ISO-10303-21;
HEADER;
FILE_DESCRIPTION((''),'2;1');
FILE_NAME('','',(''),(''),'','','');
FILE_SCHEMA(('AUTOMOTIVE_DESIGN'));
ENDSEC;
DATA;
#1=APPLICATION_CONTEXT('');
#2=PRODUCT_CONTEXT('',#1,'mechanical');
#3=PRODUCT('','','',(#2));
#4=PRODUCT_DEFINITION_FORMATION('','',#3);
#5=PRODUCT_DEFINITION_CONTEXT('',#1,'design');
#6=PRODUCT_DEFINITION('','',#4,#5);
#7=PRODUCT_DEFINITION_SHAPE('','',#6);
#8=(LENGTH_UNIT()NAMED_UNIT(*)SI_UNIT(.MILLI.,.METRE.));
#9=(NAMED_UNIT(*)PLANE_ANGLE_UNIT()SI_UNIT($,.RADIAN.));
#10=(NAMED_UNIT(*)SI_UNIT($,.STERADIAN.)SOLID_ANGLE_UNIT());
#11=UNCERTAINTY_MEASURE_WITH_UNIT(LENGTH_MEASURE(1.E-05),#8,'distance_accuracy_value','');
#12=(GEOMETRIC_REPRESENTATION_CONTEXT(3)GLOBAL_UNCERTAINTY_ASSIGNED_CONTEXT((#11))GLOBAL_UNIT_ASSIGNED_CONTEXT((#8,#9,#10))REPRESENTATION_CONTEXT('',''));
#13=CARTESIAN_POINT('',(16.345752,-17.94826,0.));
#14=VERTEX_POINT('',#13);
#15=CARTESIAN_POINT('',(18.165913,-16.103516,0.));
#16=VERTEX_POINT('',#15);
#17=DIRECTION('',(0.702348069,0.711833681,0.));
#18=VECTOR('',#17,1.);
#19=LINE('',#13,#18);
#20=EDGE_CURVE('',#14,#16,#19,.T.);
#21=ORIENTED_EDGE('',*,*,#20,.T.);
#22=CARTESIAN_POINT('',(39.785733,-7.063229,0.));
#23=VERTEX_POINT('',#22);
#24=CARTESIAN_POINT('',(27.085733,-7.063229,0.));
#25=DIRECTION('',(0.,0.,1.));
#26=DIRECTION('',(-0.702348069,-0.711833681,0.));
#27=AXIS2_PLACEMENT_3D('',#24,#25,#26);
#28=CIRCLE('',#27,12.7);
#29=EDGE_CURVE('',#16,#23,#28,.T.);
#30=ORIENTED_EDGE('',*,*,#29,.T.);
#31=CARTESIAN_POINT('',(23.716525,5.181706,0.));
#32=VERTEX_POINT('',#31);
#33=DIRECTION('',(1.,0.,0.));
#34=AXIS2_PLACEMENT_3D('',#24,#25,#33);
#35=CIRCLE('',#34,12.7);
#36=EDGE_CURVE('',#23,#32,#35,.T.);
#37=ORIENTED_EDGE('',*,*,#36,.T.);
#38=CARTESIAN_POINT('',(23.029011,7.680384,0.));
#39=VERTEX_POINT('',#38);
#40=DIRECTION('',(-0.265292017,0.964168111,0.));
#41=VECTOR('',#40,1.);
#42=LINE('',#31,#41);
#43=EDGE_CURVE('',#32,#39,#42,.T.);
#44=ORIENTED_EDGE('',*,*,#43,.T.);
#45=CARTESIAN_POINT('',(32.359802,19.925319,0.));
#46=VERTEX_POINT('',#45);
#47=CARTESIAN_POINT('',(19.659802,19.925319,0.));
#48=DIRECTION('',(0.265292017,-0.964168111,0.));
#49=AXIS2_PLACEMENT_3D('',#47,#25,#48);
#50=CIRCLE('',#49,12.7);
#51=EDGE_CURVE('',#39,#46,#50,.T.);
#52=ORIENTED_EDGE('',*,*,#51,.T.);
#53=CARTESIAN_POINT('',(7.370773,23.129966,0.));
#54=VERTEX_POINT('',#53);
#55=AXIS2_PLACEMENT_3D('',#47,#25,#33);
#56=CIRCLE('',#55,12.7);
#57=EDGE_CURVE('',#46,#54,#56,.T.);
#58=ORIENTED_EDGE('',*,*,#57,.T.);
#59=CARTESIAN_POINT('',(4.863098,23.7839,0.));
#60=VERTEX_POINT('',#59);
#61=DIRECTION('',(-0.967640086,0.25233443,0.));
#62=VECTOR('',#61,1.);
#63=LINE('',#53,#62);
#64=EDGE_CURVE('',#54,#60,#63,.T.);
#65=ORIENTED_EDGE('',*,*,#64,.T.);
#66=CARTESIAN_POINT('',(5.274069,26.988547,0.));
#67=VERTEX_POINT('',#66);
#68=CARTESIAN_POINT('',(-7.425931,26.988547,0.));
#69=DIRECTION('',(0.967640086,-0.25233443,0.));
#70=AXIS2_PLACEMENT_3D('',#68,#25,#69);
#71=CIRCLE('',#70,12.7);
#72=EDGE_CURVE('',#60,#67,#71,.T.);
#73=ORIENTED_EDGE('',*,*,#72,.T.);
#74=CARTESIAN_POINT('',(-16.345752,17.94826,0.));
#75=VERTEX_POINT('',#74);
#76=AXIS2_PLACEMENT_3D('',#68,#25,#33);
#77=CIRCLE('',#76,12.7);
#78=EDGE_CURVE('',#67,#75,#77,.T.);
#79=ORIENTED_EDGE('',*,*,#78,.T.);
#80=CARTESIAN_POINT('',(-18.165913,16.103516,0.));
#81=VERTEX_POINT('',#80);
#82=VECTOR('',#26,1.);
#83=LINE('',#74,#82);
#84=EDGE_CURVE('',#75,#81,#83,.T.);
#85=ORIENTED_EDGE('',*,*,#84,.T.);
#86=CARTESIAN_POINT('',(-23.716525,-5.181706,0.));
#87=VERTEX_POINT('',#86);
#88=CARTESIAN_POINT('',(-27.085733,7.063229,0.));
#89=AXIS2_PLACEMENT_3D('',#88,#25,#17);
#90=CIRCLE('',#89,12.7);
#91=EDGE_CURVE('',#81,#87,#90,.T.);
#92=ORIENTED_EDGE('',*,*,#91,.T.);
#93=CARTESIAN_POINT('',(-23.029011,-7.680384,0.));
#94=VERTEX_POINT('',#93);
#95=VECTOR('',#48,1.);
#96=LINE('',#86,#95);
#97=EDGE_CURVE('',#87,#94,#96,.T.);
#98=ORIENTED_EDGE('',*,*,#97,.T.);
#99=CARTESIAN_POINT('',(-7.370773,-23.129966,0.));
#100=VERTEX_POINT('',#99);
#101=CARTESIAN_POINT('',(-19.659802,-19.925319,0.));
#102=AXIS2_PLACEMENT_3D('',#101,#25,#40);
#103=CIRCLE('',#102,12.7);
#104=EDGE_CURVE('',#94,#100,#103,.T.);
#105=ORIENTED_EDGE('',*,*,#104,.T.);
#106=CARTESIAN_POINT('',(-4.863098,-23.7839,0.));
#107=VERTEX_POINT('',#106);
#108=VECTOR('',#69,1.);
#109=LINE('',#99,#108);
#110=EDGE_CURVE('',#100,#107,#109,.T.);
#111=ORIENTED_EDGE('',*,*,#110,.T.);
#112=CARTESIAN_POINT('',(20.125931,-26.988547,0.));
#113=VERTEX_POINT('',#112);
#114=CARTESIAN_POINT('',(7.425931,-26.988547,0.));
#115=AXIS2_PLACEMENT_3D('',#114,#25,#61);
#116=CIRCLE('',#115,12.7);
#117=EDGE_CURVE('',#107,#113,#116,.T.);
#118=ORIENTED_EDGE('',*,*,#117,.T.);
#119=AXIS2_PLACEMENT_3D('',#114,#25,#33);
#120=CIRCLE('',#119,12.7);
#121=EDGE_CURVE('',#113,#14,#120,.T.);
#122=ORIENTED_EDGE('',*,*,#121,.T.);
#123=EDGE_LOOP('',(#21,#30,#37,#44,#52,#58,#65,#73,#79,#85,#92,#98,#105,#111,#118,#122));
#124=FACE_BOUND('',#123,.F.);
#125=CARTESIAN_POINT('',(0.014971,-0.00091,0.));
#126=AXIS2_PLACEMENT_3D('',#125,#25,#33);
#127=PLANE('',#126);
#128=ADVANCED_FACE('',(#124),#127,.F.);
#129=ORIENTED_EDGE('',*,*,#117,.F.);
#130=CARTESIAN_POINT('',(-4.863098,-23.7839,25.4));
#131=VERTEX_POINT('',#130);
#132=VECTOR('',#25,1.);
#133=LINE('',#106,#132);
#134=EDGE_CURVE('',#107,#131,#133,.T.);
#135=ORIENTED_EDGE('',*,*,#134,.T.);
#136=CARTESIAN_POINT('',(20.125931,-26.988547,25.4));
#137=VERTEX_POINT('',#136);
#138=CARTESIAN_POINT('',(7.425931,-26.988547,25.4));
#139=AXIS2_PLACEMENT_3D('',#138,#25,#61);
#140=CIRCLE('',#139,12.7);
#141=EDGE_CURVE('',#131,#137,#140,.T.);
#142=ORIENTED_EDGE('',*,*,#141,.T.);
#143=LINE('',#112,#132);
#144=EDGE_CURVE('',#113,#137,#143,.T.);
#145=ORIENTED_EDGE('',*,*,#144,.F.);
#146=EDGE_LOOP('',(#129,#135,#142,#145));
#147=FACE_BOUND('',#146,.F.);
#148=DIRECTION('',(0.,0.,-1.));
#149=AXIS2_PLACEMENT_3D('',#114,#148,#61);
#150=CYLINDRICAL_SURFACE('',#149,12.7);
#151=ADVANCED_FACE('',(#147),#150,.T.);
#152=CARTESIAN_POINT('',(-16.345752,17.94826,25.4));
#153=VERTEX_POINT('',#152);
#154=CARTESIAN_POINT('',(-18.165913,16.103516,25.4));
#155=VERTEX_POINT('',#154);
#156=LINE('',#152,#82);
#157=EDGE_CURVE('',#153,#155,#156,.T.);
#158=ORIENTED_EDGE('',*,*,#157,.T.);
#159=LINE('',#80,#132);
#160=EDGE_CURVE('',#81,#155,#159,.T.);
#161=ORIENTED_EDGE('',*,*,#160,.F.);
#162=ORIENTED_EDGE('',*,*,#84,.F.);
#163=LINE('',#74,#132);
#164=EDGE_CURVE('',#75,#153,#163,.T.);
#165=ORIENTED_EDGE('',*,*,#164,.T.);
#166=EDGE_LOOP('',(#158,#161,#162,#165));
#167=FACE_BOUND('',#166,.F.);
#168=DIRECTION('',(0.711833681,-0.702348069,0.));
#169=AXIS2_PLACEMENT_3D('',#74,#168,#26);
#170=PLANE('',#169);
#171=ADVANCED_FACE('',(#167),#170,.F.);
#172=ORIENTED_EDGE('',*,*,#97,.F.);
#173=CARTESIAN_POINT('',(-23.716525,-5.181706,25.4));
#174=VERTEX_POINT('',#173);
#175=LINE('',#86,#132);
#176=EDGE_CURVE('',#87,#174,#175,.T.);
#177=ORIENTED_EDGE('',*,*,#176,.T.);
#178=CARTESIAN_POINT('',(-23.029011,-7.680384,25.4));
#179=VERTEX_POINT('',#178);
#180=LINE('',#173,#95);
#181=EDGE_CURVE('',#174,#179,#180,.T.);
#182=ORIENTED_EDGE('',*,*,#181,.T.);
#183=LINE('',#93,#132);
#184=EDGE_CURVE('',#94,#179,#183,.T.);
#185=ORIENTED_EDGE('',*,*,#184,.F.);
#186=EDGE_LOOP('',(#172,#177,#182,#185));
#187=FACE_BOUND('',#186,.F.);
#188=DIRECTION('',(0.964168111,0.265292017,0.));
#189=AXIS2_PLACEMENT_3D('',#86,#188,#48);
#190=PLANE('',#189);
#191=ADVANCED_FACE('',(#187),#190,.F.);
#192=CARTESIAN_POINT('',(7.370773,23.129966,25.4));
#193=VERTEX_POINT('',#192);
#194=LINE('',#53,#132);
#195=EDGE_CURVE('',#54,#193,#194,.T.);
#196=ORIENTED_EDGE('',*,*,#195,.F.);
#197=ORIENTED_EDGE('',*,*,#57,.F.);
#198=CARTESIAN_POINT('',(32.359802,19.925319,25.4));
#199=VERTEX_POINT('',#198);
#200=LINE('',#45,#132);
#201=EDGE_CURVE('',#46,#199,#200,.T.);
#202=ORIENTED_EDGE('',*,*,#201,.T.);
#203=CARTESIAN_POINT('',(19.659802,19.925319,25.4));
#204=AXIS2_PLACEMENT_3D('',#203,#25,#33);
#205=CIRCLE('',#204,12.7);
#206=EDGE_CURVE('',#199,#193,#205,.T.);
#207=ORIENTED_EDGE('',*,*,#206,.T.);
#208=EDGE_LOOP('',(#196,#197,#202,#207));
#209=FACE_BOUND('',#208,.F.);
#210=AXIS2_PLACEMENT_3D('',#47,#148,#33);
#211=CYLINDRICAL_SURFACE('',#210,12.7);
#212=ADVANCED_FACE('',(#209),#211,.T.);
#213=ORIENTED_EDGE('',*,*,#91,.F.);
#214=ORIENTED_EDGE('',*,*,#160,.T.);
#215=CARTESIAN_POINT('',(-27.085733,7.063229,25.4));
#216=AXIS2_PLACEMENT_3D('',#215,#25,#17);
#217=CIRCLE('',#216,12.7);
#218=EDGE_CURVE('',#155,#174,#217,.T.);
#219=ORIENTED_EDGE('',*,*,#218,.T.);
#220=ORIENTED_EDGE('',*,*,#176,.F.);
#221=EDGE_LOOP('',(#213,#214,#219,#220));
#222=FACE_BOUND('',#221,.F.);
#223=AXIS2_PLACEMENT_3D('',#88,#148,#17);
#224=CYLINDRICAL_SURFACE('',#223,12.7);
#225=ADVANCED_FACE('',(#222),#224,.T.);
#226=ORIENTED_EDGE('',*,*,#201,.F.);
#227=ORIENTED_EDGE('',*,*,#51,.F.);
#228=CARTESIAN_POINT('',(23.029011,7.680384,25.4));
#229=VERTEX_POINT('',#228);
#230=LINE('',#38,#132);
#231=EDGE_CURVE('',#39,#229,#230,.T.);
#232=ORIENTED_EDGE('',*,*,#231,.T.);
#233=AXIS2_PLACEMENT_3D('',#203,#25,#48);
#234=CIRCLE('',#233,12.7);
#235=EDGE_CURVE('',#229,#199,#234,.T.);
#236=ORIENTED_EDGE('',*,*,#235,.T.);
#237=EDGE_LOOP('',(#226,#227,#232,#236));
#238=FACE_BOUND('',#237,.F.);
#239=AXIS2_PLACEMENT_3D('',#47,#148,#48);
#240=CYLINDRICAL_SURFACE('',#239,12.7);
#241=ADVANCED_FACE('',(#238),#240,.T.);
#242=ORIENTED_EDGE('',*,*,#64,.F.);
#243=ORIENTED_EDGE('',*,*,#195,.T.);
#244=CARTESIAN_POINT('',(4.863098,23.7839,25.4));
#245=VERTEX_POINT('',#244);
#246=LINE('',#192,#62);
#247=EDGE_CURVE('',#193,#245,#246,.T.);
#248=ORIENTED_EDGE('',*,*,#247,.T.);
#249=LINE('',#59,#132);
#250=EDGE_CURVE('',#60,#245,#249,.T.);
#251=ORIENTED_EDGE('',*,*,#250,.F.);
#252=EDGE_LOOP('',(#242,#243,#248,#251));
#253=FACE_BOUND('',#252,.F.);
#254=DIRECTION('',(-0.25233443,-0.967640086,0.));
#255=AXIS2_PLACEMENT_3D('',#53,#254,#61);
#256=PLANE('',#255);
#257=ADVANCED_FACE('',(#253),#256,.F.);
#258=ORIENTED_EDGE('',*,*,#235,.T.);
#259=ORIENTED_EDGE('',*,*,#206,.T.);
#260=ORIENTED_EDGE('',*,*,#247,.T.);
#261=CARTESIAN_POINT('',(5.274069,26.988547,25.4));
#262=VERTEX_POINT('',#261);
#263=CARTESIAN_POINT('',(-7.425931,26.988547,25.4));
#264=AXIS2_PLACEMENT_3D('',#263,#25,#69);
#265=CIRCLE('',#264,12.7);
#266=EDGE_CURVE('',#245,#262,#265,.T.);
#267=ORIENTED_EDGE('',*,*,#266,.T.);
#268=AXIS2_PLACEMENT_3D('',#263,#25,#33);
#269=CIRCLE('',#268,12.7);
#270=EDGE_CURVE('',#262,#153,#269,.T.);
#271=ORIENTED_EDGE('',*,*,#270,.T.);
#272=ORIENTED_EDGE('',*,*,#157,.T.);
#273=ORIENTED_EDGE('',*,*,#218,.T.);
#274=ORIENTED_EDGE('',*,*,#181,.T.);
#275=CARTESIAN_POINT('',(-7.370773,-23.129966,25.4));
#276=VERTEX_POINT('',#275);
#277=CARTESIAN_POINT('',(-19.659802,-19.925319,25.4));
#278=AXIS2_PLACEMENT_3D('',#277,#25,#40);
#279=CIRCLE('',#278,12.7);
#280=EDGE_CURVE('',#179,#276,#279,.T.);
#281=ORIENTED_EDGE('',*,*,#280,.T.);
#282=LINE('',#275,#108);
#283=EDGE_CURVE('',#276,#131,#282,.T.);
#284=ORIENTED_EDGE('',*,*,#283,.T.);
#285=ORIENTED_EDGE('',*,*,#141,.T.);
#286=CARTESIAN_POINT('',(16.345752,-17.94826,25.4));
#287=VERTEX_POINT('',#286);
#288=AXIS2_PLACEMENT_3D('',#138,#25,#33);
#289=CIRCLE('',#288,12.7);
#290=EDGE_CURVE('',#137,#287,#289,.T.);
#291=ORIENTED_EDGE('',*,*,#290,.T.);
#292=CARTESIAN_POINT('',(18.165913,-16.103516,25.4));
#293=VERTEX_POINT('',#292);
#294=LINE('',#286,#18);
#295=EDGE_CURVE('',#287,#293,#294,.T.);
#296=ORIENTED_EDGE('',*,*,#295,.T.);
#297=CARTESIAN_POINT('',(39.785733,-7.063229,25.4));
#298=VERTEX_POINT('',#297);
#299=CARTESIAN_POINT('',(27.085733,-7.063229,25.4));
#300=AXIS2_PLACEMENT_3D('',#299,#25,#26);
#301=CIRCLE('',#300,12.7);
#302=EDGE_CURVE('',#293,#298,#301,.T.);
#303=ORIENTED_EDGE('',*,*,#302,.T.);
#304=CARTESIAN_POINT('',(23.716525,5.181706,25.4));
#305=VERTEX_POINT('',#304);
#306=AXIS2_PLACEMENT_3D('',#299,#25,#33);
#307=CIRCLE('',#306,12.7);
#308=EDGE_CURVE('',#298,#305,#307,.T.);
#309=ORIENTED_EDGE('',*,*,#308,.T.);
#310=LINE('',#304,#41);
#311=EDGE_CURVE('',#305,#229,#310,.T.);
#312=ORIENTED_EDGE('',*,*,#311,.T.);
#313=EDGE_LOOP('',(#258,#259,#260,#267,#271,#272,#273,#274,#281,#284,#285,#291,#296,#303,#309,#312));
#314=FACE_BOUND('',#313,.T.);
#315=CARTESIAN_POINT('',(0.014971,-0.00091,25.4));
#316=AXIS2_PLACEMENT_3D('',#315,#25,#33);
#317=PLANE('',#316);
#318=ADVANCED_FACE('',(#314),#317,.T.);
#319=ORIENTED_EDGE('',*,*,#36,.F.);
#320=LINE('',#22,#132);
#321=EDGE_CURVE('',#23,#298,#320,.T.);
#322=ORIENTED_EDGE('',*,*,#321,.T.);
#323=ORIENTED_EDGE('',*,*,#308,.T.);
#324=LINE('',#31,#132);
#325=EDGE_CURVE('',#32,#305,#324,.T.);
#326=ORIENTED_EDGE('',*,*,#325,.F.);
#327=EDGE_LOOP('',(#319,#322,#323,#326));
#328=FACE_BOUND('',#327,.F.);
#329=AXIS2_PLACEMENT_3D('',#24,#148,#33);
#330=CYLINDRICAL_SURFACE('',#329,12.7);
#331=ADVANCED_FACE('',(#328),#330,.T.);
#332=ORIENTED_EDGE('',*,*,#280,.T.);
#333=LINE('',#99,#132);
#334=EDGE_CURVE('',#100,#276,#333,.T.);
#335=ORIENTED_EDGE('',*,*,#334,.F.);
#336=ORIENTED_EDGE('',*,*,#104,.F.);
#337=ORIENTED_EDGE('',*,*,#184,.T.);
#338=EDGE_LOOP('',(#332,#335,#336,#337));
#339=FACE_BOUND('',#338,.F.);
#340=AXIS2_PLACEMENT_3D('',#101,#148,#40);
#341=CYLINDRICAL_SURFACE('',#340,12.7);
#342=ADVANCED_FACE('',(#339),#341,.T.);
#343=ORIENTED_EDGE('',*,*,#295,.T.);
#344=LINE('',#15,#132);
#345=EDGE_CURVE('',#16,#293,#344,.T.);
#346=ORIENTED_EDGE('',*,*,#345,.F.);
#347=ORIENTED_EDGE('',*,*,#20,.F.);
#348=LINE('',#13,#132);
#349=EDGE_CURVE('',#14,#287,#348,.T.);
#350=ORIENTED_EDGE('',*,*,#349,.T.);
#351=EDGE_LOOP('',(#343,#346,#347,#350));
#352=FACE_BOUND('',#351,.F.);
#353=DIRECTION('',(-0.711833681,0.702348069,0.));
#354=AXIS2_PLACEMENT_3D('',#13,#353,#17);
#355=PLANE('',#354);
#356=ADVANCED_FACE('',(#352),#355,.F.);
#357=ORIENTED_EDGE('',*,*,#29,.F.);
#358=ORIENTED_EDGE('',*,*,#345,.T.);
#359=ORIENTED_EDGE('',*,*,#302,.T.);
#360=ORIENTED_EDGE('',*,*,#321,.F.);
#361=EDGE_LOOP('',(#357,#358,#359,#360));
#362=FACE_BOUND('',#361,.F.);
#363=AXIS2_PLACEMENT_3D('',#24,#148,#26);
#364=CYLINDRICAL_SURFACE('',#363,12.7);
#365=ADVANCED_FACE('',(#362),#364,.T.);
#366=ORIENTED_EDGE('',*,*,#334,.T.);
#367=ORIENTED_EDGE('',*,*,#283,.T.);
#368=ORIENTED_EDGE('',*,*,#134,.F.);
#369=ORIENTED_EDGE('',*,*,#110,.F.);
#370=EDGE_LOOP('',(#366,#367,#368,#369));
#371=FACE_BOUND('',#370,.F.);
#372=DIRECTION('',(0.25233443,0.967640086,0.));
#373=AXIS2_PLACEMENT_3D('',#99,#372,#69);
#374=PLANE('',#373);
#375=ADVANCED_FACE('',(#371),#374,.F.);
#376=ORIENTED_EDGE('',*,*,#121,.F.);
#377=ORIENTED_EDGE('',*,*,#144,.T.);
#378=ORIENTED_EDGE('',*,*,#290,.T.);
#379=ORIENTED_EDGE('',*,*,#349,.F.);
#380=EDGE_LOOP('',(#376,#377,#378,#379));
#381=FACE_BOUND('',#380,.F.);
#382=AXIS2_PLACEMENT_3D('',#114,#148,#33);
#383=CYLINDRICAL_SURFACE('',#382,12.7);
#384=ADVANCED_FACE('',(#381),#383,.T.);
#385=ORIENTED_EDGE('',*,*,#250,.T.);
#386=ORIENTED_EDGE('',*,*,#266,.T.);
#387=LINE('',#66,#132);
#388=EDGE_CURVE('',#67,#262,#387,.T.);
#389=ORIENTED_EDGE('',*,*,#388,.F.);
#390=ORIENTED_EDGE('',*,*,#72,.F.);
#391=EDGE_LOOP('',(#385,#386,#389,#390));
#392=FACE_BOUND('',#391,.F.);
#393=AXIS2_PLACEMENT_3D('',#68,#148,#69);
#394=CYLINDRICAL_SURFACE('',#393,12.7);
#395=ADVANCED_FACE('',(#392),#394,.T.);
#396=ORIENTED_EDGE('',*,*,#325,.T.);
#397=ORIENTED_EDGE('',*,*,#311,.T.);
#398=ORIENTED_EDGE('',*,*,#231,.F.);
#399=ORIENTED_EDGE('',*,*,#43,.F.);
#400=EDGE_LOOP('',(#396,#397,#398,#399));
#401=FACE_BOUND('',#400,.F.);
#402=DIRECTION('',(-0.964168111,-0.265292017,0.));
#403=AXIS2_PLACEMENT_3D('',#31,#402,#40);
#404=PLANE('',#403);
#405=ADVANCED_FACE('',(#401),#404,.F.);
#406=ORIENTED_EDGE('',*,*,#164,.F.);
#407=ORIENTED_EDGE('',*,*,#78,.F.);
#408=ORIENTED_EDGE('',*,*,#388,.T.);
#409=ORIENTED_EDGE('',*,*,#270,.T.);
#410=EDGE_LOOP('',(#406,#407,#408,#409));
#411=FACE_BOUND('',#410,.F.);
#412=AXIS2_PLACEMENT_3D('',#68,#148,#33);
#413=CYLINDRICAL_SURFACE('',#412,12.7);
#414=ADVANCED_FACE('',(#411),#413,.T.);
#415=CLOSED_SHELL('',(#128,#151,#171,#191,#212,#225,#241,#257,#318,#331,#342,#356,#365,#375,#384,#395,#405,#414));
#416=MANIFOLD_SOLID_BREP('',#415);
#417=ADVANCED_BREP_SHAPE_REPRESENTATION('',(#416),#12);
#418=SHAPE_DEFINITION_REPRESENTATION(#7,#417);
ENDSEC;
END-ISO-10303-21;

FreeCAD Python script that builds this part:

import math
import FreeCAD as App
import Part
import Sketcher
Q = App.Units.Quantity

doc = App.newDocument("Part")
body = doc.addObject("PartDesign::Body", "Body")

sketch1 = body.newObject("Sketcher::SketchObject", "Sketch")
sketch1.AttachmentSupport = (doc.getObject("XY_Plane"), [""])
sketch1.MapMode = "FlatFace"
sketch1.addGeometry([
    Part.LineSegment(App.Vector(7.4, 23.1, 0), App.Vector(4.9, 23.8, 0)),
    Part.ArcOfCircle(Part.Circle(App.Vector(-7.4, 27, 0), App.Vector(0, 0, 1), 12.7), math.radians(-14.62), math.radians(0)),
    Part.ArcOfCircle(Part.Circle(App.Vector(-7.4, 27, 0), App.Vector(0, 0, 1), 12.7), math.radians(0), math.radians(225)),
    Part.LineSegment(App.Vector(-16.3, 17.9, 0), App.Vector(-18.2, 16.1, 0)),
    Part.ArcOfCircle(Part.Circle(App.Vector(-27.1, 7.1, 0), App.Vector(0, 0, 1), 12.7), math.radians(45), math.radians(285)),
    Part.LineSegment(App.Vector(-23.7, -5.2, 0), App.Vector(-23, -7.7, 0)),
    Part.ArcOfCircle(Part.Circle(App.Vector(-19.7, -19.9, 0), App.Vector(0, 0, 1), 12.7), math.radians(105), math.radians(345)),
    Part.LineSegment(App.Vector(-7.4, -23.1, 0), App.Vector(-4.9, -23.8, 0)),
    Part.ArcOfCircle(Part.Circle(App.Vector(7.4, -27, 0), App.Vector(0, 0, 1), 12.7), math.radians(165), math.radians(360)),
    Part.ArcOfCircle(Part.Circle(App.Vector(7.4, -27, 0), App.Vector(0, 0, 1), 12.7), math.radians(0), math.radians(45)),
    Part.LineSegment(App.Vector(16.3, -17.9, 0), App.Vector(18.2, -16.1, 0)),
    Part.ArcOfCircle(Part.Circle(App.Vector(27.1, -7.1, 0), App.Vector(0, 0, 1), 12.7), math.radians(-135), math.radians(0)),
    Part.ArcOfCircle(Part.Circle(App.Vector(27.1, -7.1, 0), App.Vector(0, 0, 1), 12.7), math.radians(0), math.radians(105)),
    Part.LineSegment(App.Vector(23.7, 5.2, 0), App.Vector(23, 7.7, 0)),
    Part.ArcOfCircle(Part.Circle(App.Vector(19.7, 19.9, 0), App.Vector(0, 0, 1), 12.7), math.radians(-75), math.radians(0)),
    Part.ArcOfCircle(Part.Circle(App.Vector(19.7, 19.9, 0), App.Vector(0, 0, 1), 12.7), math.radians(0), math.radians(165)),
], False)
sketch1.addConstraint([
    Sketcher.Constraint("Coincident", 0, 2, 1, 1),
    Sketcher.Constraint("Tangent", 1, 2, 2, 1),
    Sketcher.Constraint("Coincident", 2, 2, 3, 1),
    Sketcher.Constraint("Coincident", 3, 2, 4, 1),
    Sketcher.Constraint("Coincident", 4, 2, 5, 1),
    Sketcher.Constraint("Coincident", 5, 2, 6, 1),
    Sketcher.Constraint("Coincident", 6, 2, 7, 1),
    Sketcher.Constraint("Coincident", 7, 2, 8, 1),
    Sketcher.Constraint("Tangent", 8, 2, 9, 1),
    Sketcher.Constraint("Coincident", 9, 2, 10, 1),
    Sketcher.Constraint("Coincident", 10, 2, 11, 1),
    Sketcher.Constraint("Tangent", 11, 2, 12, 1),
    Sketcher.Constraint("Coincident", 12, 2, 13, 1),
    Sketcher.Constraint("Coincident", 13, 2, 14, 1),
    Sketcher.Constraint("Tangent", 14, 2, 15, 1),
    Sketcher.Constraint("Coincident", 15, 2, 0, 1),
    Sketcher.Constraint("Equal", 1, 2),
    Sketcher.Constraint("Equal", 2, 4),
    Sketcher.Constraint("Equal", 4, 6),
    Sketcher.Constraint("Equal", 6, 8),
    Sketcher.Constraint("Equal", 8, 9),
    Sketcher.Constraint("Equal", 9, 11),
    Sketcher.Constraint("Equal", 11, 12),
    Sketcher.Constraint("Equal", 12, 14),
    Sketcher.Constraint("Equal", 14, 15),
    Sketcher.Constraint("Symmetric", 1, 3, 8, 3, -1, 1),
    Sketcher.Constraint("Symmetric", 4, 3, 11, 3, -1, 1),
    Sketcher.Constraint("Symmetric", 6, 3, 14, 3, -1, 1),
    Sketcher.Constraint("Parallel", 0, 7),
    Sketcher.Constraint("Parallel", 3, 10),
    Sketcher.Constraint("Parallel", 5, 13),
    Sketcher.Constraint("Horizontal", 2, 3, 1, 2),
    Sketcher.Constraint("Horizontal", 9, 3, 8, 2),
    Sketcher.Constraint("Horizontal", 12, 3, 11, 2),
    Sketcher.Constraint("Horizontal", 15, 3, 14, 2),
    Sketcher.Constraint("Equal", 0, 3),
    Sketcher.Constraint("Equal", 3, 5),
    Sketcher.Constraint("Radius", 1, Q("0.5 in")),
    Sketcher.Constraint("DistanceX", 6, 3, -1, 1, Q("19.659802 mm")),
    Sketcher.Constraint("DistanceY", -1, 1, 0, 2, Q("23.7839 mm")),
    Sketcher.Constraint("DistanceY", 7, 2, -1, 1, Q("23.7839 mm")),
    Sketcher.Constraint("DistanceX", 4, 3, 1, 3, Q("19.659802 mm")),
    Sketcher.Constraint("DistanceY", 5, 2, 3, 2, Q("23.7839 mm")),
    Sketcher.Constraint("DistanceX", 1, 3, -1, 1, Q("7.425931 mm")),
    Sketcher.Constraint("DistanceY", -1, 1, 4, 3, Q("7.063229 mm")),
    Sketcher.Constraint("DistanceX", 2, 2, -1, 1, Q("16.345752 mm")),
    Sketcher.Constraint("DistanceX", 5, 2, -1, 1, Q("23.029011 mm")),
    Sketcher.Constraint("DistanceX", -1, 1, 9, 2, Q("16.345752 mm")),
    Sketcher.Constraint("DistanceX", -1, 1, 13, 2, Q("23.029011 mm")),
    Sketcher.Constraint("DistanceX", 4, 3, 4, 2, Q("3.369209 mm")),
    Sketcher.Constraint("DistanceX", 6, 3, 6, 2, Q("12.289029 mm")),
])
pad1 = body.newObject("PartDesign::Pad", "Pad")
pad1.Profile = sketch1
pad1.Length = Q("1 in")

doc.recompute()
